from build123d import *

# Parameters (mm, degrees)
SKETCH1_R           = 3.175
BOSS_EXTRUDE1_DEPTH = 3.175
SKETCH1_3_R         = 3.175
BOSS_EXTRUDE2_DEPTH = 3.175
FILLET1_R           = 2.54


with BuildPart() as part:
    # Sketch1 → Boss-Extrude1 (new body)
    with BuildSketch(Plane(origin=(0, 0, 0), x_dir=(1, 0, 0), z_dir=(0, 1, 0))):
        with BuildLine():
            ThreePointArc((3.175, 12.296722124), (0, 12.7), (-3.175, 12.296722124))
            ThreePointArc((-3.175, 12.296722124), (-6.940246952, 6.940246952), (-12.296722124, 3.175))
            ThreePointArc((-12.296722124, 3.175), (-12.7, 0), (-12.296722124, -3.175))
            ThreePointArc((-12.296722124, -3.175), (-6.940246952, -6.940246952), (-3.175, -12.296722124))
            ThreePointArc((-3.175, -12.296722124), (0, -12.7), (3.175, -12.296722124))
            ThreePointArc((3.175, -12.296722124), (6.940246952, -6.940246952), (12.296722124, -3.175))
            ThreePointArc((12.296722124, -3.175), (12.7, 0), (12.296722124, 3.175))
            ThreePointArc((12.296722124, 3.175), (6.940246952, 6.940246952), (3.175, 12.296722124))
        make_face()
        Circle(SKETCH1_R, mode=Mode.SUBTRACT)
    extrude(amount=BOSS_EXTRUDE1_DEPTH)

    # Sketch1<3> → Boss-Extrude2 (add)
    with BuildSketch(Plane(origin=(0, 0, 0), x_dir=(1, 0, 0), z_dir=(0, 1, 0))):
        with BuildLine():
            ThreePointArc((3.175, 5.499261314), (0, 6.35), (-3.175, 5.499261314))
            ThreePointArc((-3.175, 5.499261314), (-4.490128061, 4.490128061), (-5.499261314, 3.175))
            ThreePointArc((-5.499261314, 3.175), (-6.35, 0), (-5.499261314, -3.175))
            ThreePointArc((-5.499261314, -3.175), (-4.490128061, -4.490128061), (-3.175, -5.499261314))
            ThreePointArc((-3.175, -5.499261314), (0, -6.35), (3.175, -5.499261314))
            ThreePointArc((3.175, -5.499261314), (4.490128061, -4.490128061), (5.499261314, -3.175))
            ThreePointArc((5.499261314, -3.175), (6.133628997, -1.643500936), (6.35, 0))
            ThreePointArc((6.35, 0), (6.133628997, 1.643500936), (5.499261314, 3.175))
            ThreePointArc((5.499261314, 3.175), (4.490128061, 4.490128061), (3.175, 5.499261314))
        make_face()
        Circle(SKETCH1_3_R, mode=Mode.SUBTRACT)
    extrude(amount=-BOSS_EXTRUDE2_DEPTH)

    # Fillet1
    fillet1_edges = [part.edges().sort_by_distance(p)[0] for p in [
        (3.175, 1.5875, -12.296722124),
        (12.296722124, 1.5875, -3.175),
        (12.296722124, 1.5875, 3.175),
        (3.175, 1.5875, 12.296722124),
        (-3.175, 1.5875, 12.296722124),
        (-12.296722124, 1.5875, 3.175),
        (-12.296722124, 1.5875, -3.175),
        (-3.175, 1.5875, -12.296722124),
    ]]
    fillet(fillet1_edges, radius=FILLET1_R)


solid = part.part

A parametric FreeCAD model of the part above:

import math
import FreeCAD as App
import Part
import Sketcher
Q = App.Units.Quantity


def edges_at(feature, points):
    """Names of the edges that pass closest to the given points."""
    edges = feature.Shape.Edges
    near = lambda p: min(range(len(edges)), key=lambda i: edges[i].distToShape(Part.Vertex(*p))[0])
    return sorted({f"Edge{near(p) + 1}" for p in points})

doc = App.newDocument("Part")
params = doc.addObject("Spreadsheet::Sheet", "Params")
for row, (alias, value) in enumerate([
    ("sketch1_radius", "0.5 in"),
    ("sketch1_diameter", "0.25 in"),
    ("sketch1_radius2", "0.75 in"),
    ("pad1_length", "0.125 in"),
    ("sketch2_diameter", "0.25 in"),
    ("sketch2_radius", "0.25 in"),
    ("pad2_length", "0.125 in"),
    ("fillet_radius", "0.1 in"),
], start=1):
    params.set(f"A{row}", alias)
    params.set(f"B{row}", "=" + value)
    params.setAlias(f"B{row}", alias)

body = doc.addObject("PartDesign::Body", "Body")

# Sketch on XZ plane
sketch1 = doc.addObject("Sketcher::SketchObject", "Sketch")
body.addObject(sketch1)
sketch1.AttachmentSupport = (doc.XZ_Plane, [""])
sketch1.MapMode = "FlatFace"
sketch1.addGeometry(Part.ArcOfCircle(Part.Circle(App.Vector(0, 0, 0), App.Vector(0, 0, 1), 12.7), math.radians(-104.477512), math.radians(-75.522488)), False)
sketch1.addGeometry(Part.ArcOfCircle(Part.Circle(App.Vector(-20.410631, -20.410631, 0), App.Vector(0, 0, 1), 19.05), math.radians(25.209352), math.radians(64.790648)), False)
sketch1.addGeometry(Part.ArcOfCircle(Part.Circle(App.Vector(0, 0, 0), App.Vector(0, 0, 1), 12.7), math.radians(165.522488), math.radians(194.477512)), False)
sketch1.addGeometry(Part.ArcOfCircle(Part.Circle(App.Vector(-20.410631, 20.410631, 0), App.Vector(0, 0, 1), 19.05), math.radians(-64.790648), math.radians(-25.209352)), False)
sketch1.addGeometry(Part.ArcOfCircle(Part.Circle(App.Vector(0, 0, 0), App.Vector(0, 0, 1), 12.7), math.radians(75.522488), math.radians(104.477512)), False)
sketch1.addGeometry(Part.ArcOfCircle(Part.Circle(App.Vector(20.410631, 20.410631, 0), App.Vector(0, 0, 1), 19.05), math.radians(-154.790648), math.radians(-115.209352)), False)
sketch1.addGeometry(Part.ArcOfCircle(Part.Circle(App.Vector(0, 0, 0), App.Vector(0, 0, 1), 12.7), math.radians(-14.477512), math.radians(14.477512)), False)
sketch1.addGeometry(Part.ArcOfCircle(Part.Circle(App.Vector(20.410631, -20.410631, 0), App.Vector(0, 0, 1), 19.05), math.radians(115.209352), math.radians(154.790648)), False)
sketch1.addGeometry(Part.Circle(App.Vector(0, 0, 0), App.Vector(0, 0, 1), 3.175), False)
sketch1.addConstraint(Sketcher.Constraint("Coincident", 0, 1, 1, 1))
sketch1.addConstraint(Sketcher.Constraint("Coincident", 1, 2, 2, 2))
sketch1.addConstraint(Sketcher.Constraint("Coincident", 2, 1, 3, 1))
sketch1.addConstraint(Sketcher.Constraint("Coincident", 3, 2, 4, 2))
sketch1.addConstraint(Sketcher.Constraint("Coincident", 4, 1, 5, 1))
sketch1.addConstraint(Sketcher.Constraint("Coincident", 5, 2, 6, 2))
sketch1.addConstraint(Sketcher.Constraint("Coincident", 6, 1, 7, 1))
sketch1.addConstraint(Sketcher.Constraint("Coincident", 7, 2, 0, 2))
sketch1.addConstraint(Sketcher.Constraint("Coincident", 0, 3, -1, 1))
sketch1.addConstraint(Sketcher.Constraint("Coincident", 2, 3, -1, 1))
sketch1.addConstraint(Sketcher.Constraint("Coincident", 4, 3, -1, 1))
sketch1.addConstraint(Sketcher.Constraint("Coincident", 6, 3, -1, 1))
sketch1.addConstraint(Sketcher.Constraint("Coincident", 8, 3, -1, 1))
sketch1.addConstraint(Sketcher.Constraint("Equal", 0, 2))
sketch1.addConstraint(Sketcher.Constraint("Equal", 1, 3))
sketch1.addConstraint(Sketcher.Constraint("Equal", 2, 4))
sketch1.addConstraint(Sketcher.Constraint("Equal", 3, 5))
sketch1.addConstraint(Sketcher.Constraint("Equal", 4, 6))
sketch1.addConstraint(Sketcher.Constraint("Equal", 5, 7))
sketch1.addConstraint(Sketcher.Constraint("Symmetric", 1, 3, 5, 3, -1, 1))
sketch1.addConstraint(Sketcher.Constraint("Symmetric", 3, 3, 7, 3, -1, 1))
sketch1.addConstraint(Sketcher.Constraint("Symmetric", 3, 3, 5, 3, -2))
sketch1.addConstraint(Sketcher.Constraint("Radius", 0, Q("0.5 in")))
sketch1.addConstraint(Sketcher.Constraint("Diameter", 8, Q("0.25 in")))
sketch1.addConstraint(Sketcher.Constraint("Radius", 1, Q("0.75 in")))
sketch1.addConstraint(Sketcher.Constraint("DistanceY", 1, 2, 2, 1, Q("0.25 in")))
sketch1.addConstraint(Sketcher.Constraint("DistanceX", 3, 2, 4, 1, Q("0.25 in")))
sketch1.setExpression("Constraints[22]", "Params.sketch1_radius")
sketch1.setExpression("Constraints[23]", "Params.sketch1_diameter")
sketch1.setExpression("Constraints[24]", "Params.sketch1_radius2")
pad1 = doc.addObject("PartDesign::Pad", "Pad")
body.addObject(pad1)
pad1.Profile = sketch1
pad1.setExpression("Length", "Params.pad1_length")
pad1.Reversed = True

# Sketch on XZ plane
sketch2 = doc.addObject("Sketcher::SketchObject", "Sketch001")
body.addObject(sketch2)
sketch2.AttachmentSupport = (doc.XZ_Plane, [""])
sketch2.MapMode = "FlatFace"
sketch2.addGeometry(Part.ArcOfCircle(Part.Circle(App.Vector(0, 0, 0), App.Vector(0, 0, 1), 6.35), math.radians(-120), math.radians(-60)), False)
sketch2.addGeometry(Part.ArcOfCircle(Part.Circle(App.Vector(0, 0, 0), App.Vector(0, 0, 1), 6.35), math.radians(-150), math.radians(-120)), False)
sketch2.addGeometry(Part.ArcOfCircle(Part.Circle(App.Vector(0, 0, 0), App.Vector(0, 0, 1), 6.35), math.radians(150), math.radians(210)), False)
sketch2.addGeometry(Part.ArcOfCircle(Part.Circle(App.Vector(0, 0, 0), App.Vector(0, 0, 1), 6.35), math.radians(120), math.radians(150)), False)
sketch2.addGeometry(Part.ArcOfCircle(Part.Circle(App.Vector(0, 0, 0), App.Vector(0, 0, 1), 6.35), math.radians(60), math.radians(120)), False)
sketch2.addGeometry(Part.ArcOfCircle(Part.Circle(App.Vector(0, 0, 0), App.Vector(0, 0, 1), 6.35), math.radians(30), math.radians(60)), False)
sketch2.addGeometry(Part.ArcOfCircle(Part.Circle(App.Vector(0, 0, 0), App.Vector(0, 0, 1), 6.35), math.radians(0), math.radians(30)), False)
sketch2.addGeometry(Part.ArcOfCircle(Part.Circle(App.Vector(0, 0, 0), App.Vector(0, 0, 1), 6.35), math.radians(-30), math.radians(0)), False)
sketch2.addGeometry(Part.ArcOfCircle(Part.Circle(App.Vector(0, 0, 0), App.Vector(0, 0, 1), 6.35), math.radians(-60), math.radians(-30)), False)
sketch2.addGeometry(Part.Circle(App.Vector(0, 0, 0), App.Vector(0, 0, 1), 3.175), False)
sketch2.addConstraint(Sketcher.Constraint("Tangent", 0, 1, 1, 2))
sketch2.addConstraint(Sketcher.Constraint("Tangent", 1, 1, 2, 2))
sketch2.addConstraint(Sketcher.Constraint("Tangent", 2, 1, 3, 2))
sketch2.addConstraint(Sketcher.Constraint("Tangent", 3, 1, 4, 2))
sketch2.addConstraint(Sketcher.Constraint("Tangent", 4, 1, 5, 2))
sketch2.addConstraint(Sketcher.Constraint("Tangent", 5, 1, 6, 2))
sketch2.addConstraint(Sketcher.Constraint("Tangent", 6, 1, 7, 2))
sketch2.addConstraint(Sketcher.Constraint("Tangent", 7, 1, 8, 2))
sketch2.addConstraint(Sketcher.Constraint("Tangent", 8, 1, 0, 2))
sketch2.addConstraint(Sketcher.Constraint("Coincident", 0, 3, -1, 1))
sketch2.addConstraint(Sketcher.Constraint("Coincident", 2, 3, -1, 1))
sketch2.addConstraint(Sketcher.Constraint("Coincident", 4, 3, -1, 1))
sketch2.addConstraint(Sketcher.Constraint("Coincident", 6, 3, -1, 1))
sketch2.addConstraint(Sketcher.Constraint("Coincident", 9, 3, -1, 1))
sketch2.addConstraint(Sketcher.Constraint("PointOnObject", 6, 1, -1))
sketch2.addConstraint(Sketcher.Constraint("Horizontal", 3, 1, 4, 1))
sketch2.addConstraint(Sketcher.Constraint("Horizontal", 2, 1, 5, 1))
sketch2.addConstraint(Sketcher.Constraint("Horizontal", 1, 1, 7, 1))
sketch2.addConstraint(Sketcher.Constraint("Horizontal", 0, 1, 8, 1))
sketch2.addConstraint(Sketcher.Constraint("Vertical", 1, 1, 2, 1))
sketch2.addConstraint(Sketcher.Constraint("Vertical", 0, 1, 3, 1))
sketch2.addConstraint(Sketcher.Constraint("Diameter", 9, Q("0.25 in")))
sketch2.addConstraint(Sketcher.Constraint("Radius", 0, Q("0.25 in")))
sketch2.addConstraint(Sketcher.Constraint("DistanceX", 0, 1, 8, 1, Q("0.25 in")))
sketch2.addConstraint(Sketcher.Constraint("DistanceY", 1, 1, -1, 1, Q("0.125 in")))
sketch2.setExpression("Constraints[21]", "Params.sketch2_diameter")
sketch2.setExpression("Constraints[22]", "Params.sketch2_radius")
pad2 = doc.addObject("PartDesign::Pad", "Pad001")
body.addObject(pad2)
pad2.Profile = sketch2
pad2.setExpression("Length", "Params.pad2_length")
doc.recompute()

fillet = doc.addObject("PartDesign::Fillet", "Fillet")
body.addObject(fillet)
fillet.Base = (pad2, edges_at(pad2, [
    (3.175, 1.587, -12.297),
    (12.297, 1.587, -3.175),
    (12.297, 1.587, 3.175),
    (3.175, 1.587, 12.297),
    (-3.175, 1.587, 12.297),
    (-12.297, 1.587, 3.175),
    (-12.297, 1.587, -3.175),
    (-3.175, 1.587, -12.297),
]))
fillet.setExpression("Radius", "Params.fillet_radius")

doc.recompute()
